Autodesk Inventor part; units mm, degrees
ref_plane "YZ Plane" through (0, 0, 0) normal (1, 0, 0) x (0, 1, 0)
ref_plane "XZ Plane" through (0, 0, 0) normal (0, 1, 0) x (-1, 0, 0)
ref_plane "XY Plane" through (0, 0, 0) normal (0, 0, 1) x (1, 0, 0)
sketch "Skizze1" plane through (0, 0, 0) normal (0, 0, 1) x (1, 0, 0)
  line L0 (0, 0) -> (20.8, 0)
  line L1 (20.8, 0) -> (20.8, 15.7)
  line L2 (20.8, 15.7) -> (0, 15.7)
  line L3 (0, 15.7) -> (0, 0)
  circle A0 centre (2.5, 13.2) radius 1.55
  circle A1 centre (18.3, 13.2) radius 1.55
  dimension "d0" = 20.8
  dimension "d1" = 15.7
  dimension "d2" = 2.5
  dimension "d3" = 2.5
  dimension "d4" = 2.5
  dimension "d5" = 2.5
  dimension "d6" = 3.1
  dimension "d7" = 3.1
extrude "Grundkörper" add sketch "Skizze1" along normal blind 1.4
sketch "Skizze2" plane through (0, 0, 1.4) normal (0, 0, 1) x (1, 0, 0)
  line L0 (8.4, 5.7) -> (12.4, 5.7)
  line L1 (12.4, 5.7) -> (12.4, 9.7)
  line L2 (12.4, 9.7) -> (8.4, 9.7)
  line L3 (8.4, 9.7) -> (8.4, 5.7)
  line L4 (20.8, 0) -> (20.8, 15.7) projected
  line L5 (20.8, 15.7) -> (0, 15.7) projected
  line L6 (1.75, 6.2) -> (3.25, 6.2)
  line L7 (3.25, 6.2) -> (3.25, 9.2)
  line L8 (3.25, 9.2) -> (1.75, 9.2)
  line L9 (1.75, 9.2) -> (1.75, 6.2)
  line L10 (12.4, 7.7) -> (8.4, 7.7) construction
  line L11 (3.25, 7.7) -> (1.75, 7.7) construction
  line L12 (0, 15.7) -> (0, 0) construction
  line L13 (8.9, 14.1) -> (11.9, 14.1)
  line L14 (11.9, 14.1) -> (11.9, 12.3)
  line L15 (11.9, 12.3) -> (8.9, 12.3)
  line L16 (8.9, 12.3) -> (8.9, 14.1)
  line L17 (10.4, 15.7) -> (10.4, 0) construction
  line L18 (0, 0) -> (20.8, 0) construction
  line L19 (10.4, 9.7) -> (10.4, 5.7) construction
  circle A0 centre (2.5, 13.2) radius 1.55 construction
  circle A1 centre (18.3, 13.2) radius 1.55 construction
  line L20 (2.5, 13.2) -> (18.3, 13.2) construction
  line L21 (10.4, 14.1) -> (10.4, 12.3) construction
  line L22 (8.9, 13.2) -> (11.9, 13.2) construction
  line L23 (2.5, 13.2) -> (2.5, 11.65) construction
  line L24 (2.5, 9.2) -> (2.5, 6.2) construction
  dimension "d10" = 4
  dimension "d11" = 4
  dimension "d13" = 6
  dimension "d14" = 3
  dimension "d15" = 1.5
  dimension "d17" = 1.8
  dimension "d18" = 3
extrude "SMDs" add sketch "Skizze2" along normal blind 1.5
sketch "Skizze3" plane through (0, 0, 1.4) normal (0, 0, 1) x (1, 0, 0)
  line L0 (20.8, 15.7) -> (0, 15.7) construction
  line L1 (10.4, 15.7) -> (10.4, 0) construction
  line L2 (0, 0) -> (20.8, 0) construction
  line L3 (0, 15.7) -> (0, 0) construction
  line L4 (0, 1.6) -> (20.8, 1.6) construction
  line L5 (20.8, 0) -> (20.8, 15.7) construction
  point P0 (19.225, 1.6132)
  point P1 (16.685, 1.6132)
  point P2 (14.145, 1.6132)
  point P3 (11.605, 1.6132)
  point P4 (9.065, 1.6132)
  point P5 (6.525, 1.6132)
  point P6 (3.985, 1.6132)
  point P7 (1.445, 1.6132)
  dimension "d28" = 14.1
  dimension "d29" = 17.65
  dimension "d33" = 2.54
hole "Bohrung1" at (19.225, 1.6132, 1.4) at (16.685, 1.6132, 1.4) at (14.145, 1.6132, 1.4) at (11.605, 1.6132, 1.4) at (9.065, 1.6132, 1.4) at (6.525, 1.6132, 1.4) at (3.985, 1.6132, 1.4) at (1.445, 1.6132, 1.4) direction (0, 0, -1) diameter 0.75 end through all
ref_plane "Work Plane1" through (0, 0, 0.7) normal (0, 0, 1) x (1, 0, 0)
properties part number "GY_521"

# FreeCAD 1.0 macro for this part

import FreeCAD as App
import Part
import Sketcher

V = App.Vector


def add_polygon(sketch, points):
    """Adds a closed chain of lines whose ends are joined by coincident constraints."""
    first, n = sketch.GeometryCount, len(points)
    for a, b in zip(points, points[1:] + points[:1]):
        sketch.addGeometry(Part.LineSegment(App.Vector(*a, 0), App.Vector(*b, 0)), False)
    for i in range(n):
        sketch.addConstraint(Sketcher.Constraint("Coincident", first + i, 2, first + (i + 1) % n, 1))

doc = App.newDocument("Part")
params = doc.addObject("Spreadsheet::Sheet", "Params")
for row, (alias, value) in enumerate([
    ("sketch1_diameter", "3.1 mm"),
    ("sketch1_width", "20.8 mm"),
    ("sketch1_height", "15.7 mm"),
    ("pad1_length", "1.4 mm"),
    ("sketch2_width", "4 mm"),
    ("sketch2_width2", "3 mm"),
    ("sketch2_width3", "1.5 mm"),
    ("sketch2_height", "1.8 mm"),
    ("pad2_length", "1.5 mm"),
    ("sketch3_diameter", "0.75 mm"),
    ("hole_diameter", "0.75 mm"),
], start=1):
    params.set(f"A{row}", alias)
    params.set(f"B{row}", "=" + value)
    params.setAlias(f"B{row}", alias)

body = doc.addObject("PartDesign::Body", "Body")

# Sketch on XY plane
sketch1 = body.newObject("Sketcher::SketchObject", "Sketch")
sketch1.AttachmentSupport = (doc.getObject("XY_Plane"), [""])
sketch1.MapMode = "FlatFace"
add_polygon(sketch1, [(0, 15.7), (0, 0), (20.8, 0), (20.8, 15.7)])  # lines 0-3
sketch1.addGeometry(Part.Circle(V(2.5, 13.2, 0), V(0, 0, 1), 1.6), False)  # 4
sketch1.addGeometry(Part.Circle(V(18.3, 13.2, 0), V(0, 0, 1), 1.6), False)  # 5
sketch1.addConstraint([
    Sketcher.Constraint("Vertical", 0),
    Sketcher.Constraint("Horizontal", 1),
    Sketcher.Constraint("Vertical", 2),
    Sketcher.Constraint("Horizontal", 3),
    Sketcher.Constraint("Coincident", 0, 2, -1, 1),
    Sketcher.Constraint("Equal", 4, 5),
    Sketcher.Constraint("Horizontal", 4, 3, 5, 3),
    Sketcher.Constraint("Diameter", 4, 3.1),
    Sketcher.Constraint("DistanceX", 1, 1, 1, 2, 20.8),
    Sketcher.Constraint("DistanceY", 0, 2, 0, 1, 15.7),
    Sketcher.Constraint("DistanceX", -1, 1, 4, 3, 2.5),
    Sketcher.Constraint("DistanceX", 5, 3, 1, 2, 2.5),
    Sketcher.Constraint("DistanceY", 5, 3, 2, 2, 2.5),
])
sketch1.setExpression("Constraints[11]", "Params.sketch1_diameter")
sketch1.setExpression("Constraints[12]", "Params.sketch1_width")
sketch1.setExpression("Constraints[13]", "Params.sketch1_height")
pad1 = body.newObject("PartDesign::Pad", "Pad")
pad1.Profile = sketch1
pad1.setExpression("Length", "Params.pad1_length")

# Sketch on XY plane
sketch2 = body.newObject("Sketcher::SketchObject", "Sketch001")
sketch2.AttachmentSupport = (doc.getObject("XY_Plane"), [""])
sketch2.MapMode = "FlatFace"
sketch2.AttachmentOffset = App.Placement(V(0, 0, 1.4), App.Rotation())
add_polygon(sketch2, [(8.4, 9.7), (8.4, 5.7), (12.4, 5.7), (12.4, 9.7)])  # lines 0-3
add_polygon(sketch2, [(1.8, 9.2), (1.8, 6.2), (3.2, 6.2), (3.2, 9.2)])  # lines 4-7
add_polygon(sketch2, [(11.9, 14.1), (8.9, 14.1), (8.9, 12.3), (11.9, 12.3)])  # lines 8-11
sketch2.addConstraint([
    Sketcher.Constraint("Vertical", 0),
    Sketcher.Constraint("Horizontal", 1),
    Sketcher.Constraint("Vertical", 2),
    Sketcher.Constraint("Horizontal", 3),
    Sketcher.Constraint("Vertical", 4),
    Sketcher.Constraint("Horizontal", 5),
    Sketcher.Constraint("Vertical", 6),
    Sketcher.Constraint("Horizontal", 7),
    Sketcher.Constraint("Horizontal", 8),
    Sketcher.Constraint("Vertical", 9),
    Sketcher.Constraint("Horizontal", 10),
    Sketcher.Constraint("Vertical", 11),
    Sketcher.Constraint("Equal", 3, 0),
    Sketcher.Constraint("Equal", 10, 4),
    Sketcher.Constraint("DistanceX", 1, 1, 1, 2, 4.0),
    Sketcher.Constraint("DistanceX", 8, 2, 8, 1, 3.0),
    Sketcher.Constraint("DistanceX", 5, 1, 5, 2, 1.5),
    Sketcher.Constraint("DistanceY", 9, 2, 9, 1, 1.8),
    Sketcher.Constraint("DistanceX", -1, 1, 0, 2, 8.4),
    Sketcher.Constraint("DistanceY", -1, 1, 0, 2, 5.7),
    Sketcher.Constraint("DistanceY", -1, 1, 4, 2, 6.2),
    Sketcher.Constraint("DistanceX", -1, 1, 8, 2, 8.9),
    Sketcher.Constraint("DistanceY", -1, 1, 8, 2, 14.1),
    Sketcher.Constraint("DistanceX", -1, 1, 4, 2, 1.75),
])
sketch2.setExpression("Constraints[26]", "Params.sketch2_width")
sketch2.setExpression("Constraints[27]", "Params.sketch2_width2")
sketch2.setExpression("Constraints[28]", "Params.sketch2_width3")
sketch2.setExpression("Constraints[29]", "Params.sketch2_height")
pad2 = body.newObject("PartDesign::Pad", "Pad001")
pad2.Profile = sketch2
pad2.setExpression("Length", "Params.pad2_length")

# Sketch on XY plane
sketch3 = body.newObject("Sketcher::SketchObject", "Sketch002")
sketch3.AttachmentSupport = (doc.getObject("XY_Plane"), [""])
sketch3.MapMode = "FlatFace"
sketch3.AttachmentOffset = App.Placement(V(0, 0, 1.4), App.Rotation())
sketch3.addGeometry([
    Part.Circle(V(19.23, 1.61, 0), V(0, 0, 1), 0.38),  # 0
    Part.Circle(V(16.68, 1.61, 0), V(0, 0, 1), 0.38),  # 1
    Part.Circle(V(14.14, 1.61, 0), V(0, 0, 1), 0.38),  # 2
    Part.Circle(V(11.61, 1.61, 0), V(0, 0, 1), 0.38),  # 3
    Part.Circle(V(9.06, 1.61, 0), V(0, 0, 1), 0.38),  # 4
    Part.Circle(V(6.53, 1.61, 0), V(0, 0, 1), 0.38),  # 5
    Part.Circle(V(3.98, 1.61, 0), V(0, 0, 1), 0.38),  # 6
    Part.Circle(V(1.45, 1.61, 0), V(0, 0, 1), 0.38),  # 7
], False)
sketch3.addConstraint([
    Sketcher.Constraint("Equal", 0, 1),
    Sketcher.Constraint("Equal", 1, 2),
    Sketcher.Constraint("Equal", 2, 3),
    Sketcher.Constraint("Equal", 3, 4),
    Sketcher.Constraint("Equal", 4, 5),
    Sketcher.Constraint("Equal", 5, 6),
    Sketcher.Constraint("Equal", 6, 7),
    Sketcher.Constraint("Horizontal", 0, 3, 1, 3),
    Sketcher.Constraint("Horizontal", 1, 3, 2, 3),
    Sketcher.Constraint("Horizontal", 2, 3, 3, 3),
    Sketcher.Constraint("Horizontal", 3, 3, 4, 3),
    Sketcher.Constraint("Horizontal", 4, 3, 5, 3),
    Sketcher.Constraint("Horizontal", 5, 3, 6, 3),
    Sketcher.Constraint("Horizontal", 6, 3, 7, 3),
    Sketcher.Constraint("Diameter", 0, 0.75),
    Sketcher.Constraint("DistanceX", 5, 3, 0, 3, 12.7),
    Sketcher.Constraint("DistanceX", 6, 3, 1, 3, 12.7),
    Sketcher.Constraint("DistanceX", 7, 3, 2, 3, 12.7),
    Sketcher.Constraint("DistanceX", 1, 3, 0, 3, 2.54),
    Sketcher.Constraint("DistanceX", 2, 3, 1, 3, 2.54),
    Sketcher.Constraint("DistanceX", 3, 3, 2, 3, 2.54),
    Sketcher.Constraint("DistanceX", 4, 3, 3, 3, 2.54),
    Sketcher.Constraint("DistanceX", -1, 1, 0, 3, 19.225),
    Sketcher.Constraint("DistanceY", -1, 1, 0, 3, 1.6132),
])
sketch3.setExpression("Constraints[14]", "Params.sketch3_diameter")
doc.recompute()
hole = body.newObject("PartDesign::Hole", "Hole")
hole.Profile = sketch3
hole.ThreadType = "None"
hole.setExpression("Diameter", "Params.hole_diameter")
hole.DepthType = "ThroughAll"

doc.recompute()
